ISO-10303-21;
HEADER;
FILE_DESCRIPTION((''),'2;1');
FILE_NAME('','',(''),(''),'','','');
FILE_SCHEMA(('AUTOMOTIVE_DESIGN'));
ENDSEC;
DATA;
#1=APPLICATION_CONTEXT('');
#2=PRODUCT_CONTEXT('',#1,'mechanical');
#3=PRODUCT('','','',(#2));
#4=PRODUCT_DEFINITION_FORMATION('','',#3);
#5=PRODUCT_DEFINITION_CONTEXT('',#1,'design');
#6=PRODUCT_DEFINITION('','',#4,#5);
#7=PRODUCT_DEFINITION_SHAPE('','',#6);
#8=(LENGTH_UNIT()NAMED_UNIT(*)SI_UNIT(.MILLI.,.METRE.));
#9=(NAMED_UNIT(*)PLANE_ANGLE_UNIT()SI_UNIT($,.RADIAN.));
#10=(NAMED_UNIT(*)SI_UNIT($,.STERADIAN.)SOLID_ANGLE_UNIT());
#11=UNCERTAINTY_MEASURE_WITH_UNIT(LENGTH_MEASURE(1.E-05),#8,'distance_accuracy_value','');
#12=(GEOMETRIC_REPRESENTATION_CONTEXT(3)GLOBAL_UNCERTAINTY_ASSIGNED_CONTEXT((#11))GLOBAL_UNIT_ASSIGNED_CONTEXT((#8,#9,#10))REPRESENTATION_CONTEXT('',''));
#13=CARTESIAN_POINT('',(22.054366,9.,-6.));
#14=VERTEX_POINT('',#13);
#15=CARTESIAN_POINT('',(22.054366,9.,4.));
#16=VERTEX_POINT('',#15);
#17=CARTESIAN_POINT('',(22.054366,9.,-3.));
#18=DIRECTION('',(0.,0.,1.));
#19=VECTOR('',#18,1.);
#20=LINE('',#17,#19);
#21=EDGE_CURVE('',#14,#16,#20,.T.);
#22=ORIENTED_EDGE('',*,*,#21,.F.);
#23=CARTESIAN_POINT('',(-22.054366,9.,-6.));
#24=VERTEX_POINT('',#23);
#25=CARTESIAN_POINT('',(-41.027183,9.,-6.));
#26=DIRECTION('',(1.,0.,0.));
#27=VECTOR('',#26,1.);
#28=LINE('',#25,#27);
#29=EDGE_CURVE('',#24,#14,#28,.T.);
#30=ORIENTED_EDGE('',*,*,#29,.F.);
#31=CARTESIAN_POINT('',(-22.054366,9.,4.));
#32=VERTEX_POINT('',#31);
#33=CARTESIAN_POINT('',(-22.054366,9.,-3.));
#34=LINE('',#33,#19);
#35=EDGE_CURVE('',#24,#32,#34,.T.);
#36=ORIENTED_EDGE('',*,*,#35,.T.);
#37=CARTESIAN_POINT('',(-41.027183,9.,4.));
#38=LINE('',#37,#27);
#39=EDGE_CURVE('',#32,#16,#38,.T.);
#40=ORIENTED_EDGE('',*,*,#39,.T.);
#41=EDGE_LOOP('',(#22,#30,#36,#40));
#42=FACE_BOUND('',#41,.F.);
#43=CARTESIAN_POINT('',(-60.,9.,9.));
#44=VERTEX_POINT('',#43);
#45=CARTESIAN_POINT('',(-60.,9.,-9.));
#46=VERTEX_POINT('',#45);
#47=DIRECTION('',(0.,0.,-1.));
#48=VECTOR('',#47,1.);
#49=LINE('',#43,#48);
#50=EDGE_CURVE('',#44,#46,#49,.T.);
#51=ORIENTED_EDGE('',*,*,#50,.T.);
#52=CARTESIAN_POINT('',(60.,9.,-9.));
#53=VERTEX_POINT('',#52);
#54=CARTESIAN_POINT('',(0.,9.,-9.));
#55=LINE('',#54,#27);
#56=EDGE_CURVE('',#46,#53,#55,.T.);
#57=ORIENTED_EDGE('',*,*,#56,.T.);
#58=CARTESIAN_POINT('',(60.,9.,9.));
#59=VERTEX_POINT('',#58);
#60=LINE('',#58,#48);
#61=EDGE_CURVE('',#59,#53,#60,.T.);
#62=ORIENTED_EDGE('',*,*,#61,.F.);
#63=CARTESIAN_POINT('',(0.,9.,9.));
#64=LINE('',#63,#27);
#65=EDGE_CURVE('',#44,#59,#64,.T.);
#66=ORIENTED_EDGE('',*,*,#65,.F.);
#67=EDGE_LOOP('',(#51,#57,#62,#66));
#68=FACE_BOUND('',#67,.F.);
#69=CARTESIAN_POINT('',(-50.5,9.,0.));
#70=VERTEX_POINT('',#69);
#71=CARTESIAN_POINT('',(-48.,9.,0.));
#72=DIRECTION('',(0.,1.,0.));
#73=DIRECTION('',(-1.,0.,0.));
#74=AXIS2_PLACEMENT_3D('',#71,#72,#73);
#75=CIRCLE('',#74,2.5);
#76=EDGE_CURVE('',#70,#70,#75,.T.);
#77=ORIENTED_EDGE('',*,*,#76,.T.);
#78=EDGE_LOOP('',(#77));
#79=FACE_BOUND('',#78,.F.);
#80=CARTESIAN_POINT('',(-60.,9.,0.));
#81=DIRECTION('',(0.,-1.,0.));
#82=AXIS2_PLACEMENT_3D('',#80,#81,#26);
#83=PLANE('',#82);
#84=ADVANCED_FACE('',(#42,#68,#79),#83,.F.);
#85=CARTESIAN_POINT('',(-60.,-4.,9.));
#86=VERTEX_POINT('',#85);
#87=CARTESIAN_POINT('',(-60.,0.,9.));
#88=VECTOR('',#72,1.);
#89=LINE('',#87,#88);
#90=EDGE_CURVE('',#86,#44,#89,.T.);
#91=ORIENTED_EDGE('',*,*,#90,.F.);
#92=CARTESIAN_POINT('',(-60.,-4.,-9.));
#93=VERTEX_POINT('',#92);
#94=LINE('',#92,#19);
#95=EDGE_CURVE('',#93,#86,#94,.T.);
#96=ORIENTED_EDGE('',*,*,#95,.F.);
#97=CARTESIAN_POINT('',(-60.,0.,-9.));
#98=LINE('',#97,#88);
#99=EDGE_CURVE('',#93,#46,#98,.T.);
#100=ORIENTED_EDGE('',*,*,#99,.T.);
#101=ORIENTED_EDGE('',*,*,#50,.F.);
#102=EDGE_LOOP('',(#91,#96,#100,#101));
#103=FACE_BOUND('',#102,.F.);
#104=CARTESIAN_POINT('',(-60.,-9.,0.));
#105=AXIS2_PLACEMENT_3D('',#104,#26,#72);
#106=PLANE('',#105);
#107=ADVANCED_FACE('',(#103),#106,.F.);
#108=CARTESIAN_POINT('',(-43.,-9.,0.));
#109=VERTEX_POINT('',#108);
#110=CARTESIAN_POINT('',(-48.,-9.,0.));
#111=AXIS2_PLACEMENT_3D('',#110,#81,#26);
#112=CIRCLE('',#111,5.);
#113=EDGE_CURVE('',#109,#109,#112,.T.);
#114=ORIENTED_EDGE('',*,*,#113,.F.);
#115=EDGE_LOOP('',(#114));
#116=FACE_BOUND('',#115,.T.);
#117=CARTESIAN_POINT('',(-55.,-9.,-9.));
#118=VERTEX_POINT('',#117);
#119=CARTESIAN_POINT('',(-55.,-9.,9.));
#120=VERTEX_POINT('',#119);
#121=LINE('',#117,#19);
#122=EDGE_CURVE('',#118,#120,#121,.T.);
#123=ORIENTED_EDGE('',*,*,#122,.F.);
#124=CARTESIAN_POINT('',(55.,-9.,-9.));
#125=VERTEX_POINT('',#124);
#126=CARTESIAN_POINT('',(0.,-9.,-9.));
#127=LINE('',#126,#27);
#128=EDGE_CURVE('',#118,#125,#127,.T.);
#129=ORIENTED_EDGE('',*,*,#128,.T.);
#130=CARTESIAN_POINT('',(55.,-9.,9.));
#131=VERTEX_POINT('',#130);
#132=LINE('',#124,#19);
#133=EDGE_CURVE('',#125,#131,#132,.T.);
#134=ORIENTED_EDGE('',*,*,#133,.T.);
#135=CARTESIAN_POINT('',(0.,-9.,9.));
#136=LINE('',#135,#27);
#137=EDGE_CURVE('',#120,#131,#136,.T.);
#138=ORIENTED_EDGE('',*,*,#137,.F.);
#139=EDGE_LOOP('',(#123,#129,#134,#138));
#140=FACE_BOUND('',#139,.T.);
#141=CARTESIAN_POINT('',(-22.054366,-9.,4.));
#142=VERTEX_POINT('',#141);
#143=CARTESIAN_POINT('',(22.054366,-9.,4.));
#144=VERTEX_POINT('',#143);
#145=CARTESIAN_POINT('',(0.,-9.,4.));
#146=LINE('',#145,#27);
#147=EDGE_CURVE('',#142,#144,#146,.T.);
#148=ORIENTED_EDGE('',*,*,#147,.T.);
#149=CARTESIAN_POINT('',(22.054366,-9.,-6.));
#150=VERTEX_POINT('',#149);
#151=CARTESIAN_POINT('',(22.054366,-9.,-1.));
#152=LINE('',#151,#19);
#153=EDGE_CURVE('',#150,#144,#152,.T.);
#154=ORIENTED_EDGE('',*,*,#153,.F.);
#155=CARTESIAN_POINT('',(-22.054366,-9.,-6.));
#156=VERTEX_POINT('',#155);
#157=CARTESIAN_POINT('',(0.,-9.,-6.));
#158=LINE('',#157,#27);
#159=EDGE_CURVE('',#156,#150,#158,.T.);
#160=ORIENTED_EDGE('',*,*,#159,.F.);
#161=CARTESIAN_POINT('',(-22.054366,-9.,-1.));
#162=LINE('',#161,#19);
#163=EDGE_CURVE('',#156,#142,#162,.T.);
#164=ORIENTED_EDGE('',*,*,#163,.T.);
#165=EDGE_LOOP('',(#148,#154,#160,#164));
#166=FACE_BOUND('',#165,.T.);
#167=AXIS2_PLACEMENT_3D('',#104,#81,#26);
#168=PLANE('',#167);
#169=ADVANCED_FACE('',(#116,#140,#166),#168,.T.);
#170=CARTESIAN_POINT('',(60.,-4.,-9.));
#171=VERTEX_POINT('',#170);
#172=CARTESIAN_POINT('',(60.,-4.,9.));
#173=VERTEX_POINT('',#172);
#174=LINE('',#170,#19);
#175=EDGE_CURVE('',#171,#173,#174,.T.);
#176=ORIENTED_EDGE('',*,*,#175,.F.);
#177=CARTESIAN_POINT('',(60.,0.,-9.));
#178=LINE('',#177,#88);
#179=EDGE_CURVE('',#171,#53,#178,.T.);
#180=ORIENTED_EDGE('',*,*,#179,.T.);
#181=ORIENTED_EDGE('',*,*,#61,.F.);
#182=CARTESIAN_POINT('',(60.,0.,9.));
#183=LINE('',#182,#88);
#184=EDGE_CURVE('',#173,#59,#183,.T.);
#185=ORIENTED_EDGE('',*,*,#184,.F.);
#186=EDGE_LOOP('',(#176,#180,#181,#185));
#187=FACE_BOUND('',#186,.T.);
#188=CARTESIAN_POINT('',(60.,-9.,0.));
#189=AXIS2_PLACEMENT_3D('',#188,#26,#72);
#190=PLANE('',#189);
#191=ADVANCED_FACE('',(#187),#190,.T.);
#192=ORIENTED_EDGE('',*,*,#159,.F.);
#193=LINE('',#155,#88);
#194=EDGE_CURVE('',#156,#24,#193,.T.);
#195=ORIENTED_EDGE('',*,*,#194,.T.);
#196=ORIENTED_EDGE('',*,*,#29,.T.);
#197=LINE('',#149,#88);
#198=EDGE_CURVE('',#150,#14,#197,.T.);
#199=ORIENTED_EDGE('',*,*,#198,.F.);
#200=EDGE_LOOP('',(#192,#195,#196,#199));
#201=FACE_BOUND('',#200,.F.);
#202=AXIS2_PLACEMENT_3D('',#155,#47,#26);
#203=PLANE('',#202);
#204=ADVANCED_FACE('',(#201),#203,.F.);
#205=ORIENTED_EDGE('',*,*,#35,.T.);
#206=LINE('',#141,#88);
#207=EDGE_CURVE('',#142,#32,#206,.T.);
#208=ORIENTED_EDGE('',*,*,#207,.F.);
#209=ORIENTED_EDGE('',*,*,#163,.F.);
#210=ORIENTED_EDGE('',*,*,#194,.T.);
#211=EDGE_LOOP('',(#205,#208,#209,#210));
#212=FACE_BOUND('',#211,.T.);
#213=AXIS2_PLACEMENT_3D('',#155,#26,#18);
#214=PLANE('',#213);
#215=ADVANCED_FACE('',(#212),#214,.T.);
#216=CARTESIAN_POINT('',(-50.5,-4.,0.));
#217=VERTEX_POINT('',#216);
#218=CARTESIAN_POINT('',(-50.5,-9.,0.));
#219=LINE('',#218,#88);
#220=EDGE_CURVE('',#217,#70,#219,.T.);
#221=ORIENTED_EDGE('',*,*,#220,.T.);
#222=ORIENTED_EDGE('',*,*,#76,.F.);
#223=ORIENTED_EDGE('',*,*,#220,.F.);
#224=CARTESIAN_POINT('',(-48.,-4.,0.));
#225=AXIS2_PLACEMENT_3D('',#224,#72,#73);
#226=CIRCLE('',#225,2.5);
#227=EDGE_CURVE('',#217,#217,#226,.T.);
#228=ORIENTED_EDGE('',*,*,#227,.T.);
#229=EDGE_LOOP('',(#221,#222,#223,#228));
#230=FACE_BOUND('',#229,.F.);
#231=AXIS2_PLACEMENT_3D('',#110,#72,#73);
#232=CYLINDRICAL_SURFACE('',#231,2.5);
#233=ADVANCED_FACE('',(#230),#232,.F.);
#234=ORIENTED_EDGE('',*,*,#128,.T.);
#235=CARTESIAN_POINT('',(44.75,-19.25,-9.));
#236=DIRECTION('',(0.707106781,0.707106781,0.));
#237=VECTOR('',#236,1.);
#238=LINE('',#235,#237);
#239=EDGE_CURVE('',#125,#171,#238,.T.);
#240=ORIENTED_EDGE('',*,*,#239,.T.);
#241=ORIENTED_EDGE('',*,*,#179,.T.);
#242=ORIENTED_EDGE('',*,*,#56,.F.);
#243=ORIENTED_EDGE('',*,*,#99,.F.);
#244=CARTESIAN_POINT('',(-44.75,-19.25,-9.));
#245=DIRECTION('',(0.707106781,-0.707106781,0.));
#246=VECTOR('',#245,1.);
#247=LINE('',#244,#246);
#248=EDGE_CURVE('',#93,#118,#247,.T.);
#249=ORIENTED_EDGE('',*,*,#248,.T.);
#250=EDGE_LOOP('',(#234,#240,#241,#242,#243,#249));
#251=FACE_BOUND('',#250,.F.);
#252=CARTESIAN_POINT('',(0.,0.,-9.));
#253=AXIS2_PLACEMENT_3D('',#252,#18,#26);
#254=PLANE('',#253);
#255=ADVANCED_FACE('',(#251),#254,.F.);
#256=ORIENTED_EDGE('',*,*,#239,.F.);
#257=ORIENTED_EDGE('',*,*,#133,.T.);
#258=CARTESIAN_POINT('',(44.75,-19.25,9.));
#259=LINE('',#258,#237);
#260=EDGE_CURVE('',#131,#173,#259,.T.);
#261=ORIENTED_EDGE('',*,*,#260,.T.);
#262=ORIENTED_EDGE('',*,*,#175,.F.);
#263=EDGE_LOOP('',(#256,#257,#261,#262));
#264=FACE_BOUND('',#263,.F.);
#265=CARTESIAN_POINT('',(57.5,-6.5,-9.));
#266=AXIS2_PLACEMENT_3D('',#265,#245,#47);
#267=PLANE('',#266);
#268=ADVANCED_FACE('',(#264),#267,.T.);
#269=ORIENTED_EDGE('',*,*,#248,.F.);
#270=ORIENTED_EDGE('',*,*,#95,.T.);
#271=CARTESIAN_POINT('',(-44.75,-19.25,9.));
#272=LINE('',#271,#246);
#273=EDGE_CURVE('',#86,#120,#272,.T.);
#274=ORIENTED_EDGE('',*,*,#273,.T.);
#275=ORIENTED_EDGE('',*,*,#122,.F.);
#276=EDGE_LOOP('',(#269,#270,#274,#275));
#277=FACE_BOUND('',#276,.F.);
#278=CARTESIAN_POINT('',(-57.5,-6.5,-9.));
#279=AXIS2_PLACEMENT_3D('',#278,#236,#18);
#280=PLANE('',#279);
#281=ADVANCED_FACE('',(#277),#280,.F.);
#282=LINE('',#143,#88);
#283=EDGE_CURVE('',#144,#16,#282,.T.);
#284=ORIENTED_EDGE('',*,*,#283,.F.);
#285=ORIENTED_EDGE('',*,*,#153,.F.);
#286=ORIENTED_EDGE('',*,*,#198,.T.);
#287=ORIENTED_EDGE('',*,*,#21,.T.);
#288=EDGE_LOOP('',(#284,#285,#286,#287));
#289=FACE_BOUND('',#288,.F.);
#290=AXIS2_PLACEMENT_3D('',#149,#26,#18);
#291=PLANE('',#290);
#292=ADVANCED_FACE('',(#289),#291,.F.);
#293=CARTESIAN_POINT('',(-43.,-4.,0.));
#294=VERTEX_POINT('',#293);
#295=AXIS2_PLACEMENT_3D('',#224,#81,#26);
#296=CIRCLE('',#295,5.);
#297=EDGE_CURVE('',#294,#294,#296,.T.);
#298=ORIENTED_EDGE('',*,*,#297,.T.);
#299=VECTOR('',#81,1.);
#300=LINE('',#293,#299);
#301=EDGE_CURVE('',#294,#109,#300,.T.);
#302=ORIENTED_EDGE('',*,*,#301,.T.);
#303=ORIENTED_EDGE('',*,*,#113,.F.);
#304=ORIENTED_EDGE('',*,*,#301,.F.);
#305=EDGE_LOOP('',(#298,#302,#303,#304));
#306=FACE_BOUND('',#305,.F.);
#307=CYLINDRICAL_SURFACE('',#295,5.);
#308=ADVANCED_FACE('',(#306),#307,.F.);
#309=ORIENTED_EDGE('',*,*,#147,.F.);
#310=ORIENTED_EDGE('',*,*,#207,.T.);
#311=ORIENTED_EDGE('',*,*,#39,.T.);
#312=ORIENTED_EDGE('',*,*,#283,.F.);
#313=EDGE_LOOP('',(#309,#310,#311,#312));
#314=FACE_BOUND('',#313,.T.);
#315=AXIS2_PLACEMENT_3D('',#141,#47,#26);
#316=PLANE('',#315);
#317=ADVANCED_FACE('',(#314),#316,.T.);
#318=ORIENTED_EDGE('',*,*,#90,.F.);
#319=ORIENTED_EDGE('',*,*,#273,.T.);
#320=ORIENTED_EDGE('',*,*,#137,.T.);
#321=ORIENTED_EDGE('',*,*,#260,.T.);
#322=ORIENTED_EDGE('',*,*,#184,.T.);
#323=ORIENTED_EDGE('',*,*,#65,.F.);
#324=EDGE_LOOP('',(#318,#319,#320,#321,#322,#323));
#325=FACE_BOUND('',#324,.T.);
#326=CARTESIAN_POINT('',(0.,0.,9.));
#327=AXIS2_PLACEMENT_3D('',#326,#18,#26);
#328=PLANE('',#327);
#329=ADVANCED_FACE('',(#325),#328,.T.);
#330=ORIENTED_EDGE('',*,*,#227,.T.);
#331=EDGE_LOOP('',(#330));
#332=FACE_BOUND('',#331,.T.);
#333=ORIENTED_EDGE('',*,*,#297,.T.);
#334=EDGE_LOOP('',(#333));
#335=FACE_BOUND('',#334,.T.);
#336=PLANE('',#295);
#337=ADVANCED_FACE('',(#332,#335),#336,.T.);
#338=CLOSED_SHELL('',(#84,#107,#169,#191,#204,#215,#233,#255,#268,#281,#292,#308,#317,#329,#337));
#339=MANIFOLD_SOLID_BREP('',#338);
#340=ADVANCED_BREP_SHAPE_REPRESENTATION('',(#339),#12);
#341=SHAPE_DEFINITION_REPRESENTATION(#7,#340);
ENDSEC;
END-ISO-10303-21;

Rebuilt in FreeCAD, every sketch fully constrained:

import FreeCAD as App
import Part
import Sketcher
from FreeCAD import Vector
Q = App.Units.Quantity


def edges_at(feature, points):
    """Names of the edges that pass closest to the given points."""
    edges = feature.Shape.Edges
    near = lambda p: min(range(len(edges)), key=lambda i: edges[i].distToShape(Part.Vertex(*p))[0])
    return sorted({f"Edge{near(p) + 1}" for p in points})


def add_polygon(sketch, points):
    """Adds a closed chain of lines whose ends are joined by coincident constraints."""
    first, n = sketch.GeometryCount, len(points)
    for a, b in zip(points, points[1:] + points[:1]):
        sketch.addGeometry(Part.LineSegment(App.Vector(*a, 0), App.Vector(*b, 0)), False)
    for i in range(n):
        sketch.addConstraint(Sketcher.Constraint("Coincident", first + i, 2, first + (i + 1) % n, 1))

doc = App.newDocument("Part")
body = doc.addObject("PartDesign::Body", "Body")

# Sketch on XY plane
sketch1 = body.newObject("Sketcher::SketchObject", "Sketch")
sketch1.AttachmentSupport = (doc.getObject("XY_Plane"), [""])
sketch1.MapMode = "FlatFace"
add_polygon(sketch1, [(-60, 9), (-60, -9), (60, -9), (60, 9)])  # lines 0-3
sketch1.addConstraint(Sketcher.Constraint("Vertical", 0))
sketch1.addConstraint(Sketcher.Constraint("Horizontal", 1))
sketch1.addConstraint(Sketcher.Constraint("Vertical", 2))
sketch1.addConstraint(Sketcher.Constraint("Horizontal", 3))
sketch1.addConstraint(Sketcher.Constraint("Symmetric", 0, 2, 2, 2, -1, 1))
sketch1.addConstraint(Sketcher.Constraint("DistanceX", 1, 1, 1, 2, Q("120 mm")))
sketch1.addConstraint(Sketcher.Constraint("DistanceY", 0, 2, 0, 1, Q("18 mm")))
pad1 = body.newObject("PartDesign::Pad", "Pad")
pad1.Profile = sketch1
pad1.Length = 18
pad1.Midplane = True

# Sketch on XZ plane
sketch2 = body.newObject("Sketcher::SketchObject", "Sketch001")
sketch2.AttachmentSupport = (doc.getObject("XZ_Plane"), [""])
sketch2.MapMode = "FlatFace"
sketch2.AttachmentOffset = App.Placement(Vector(0, 0, 9), App.Rotation())
add_polygon(sketch2, [(-22, 4), (-22, -6), (22, -6), (22, 4)])  # lines 0-3
sketch2.addConstraint(Sketcher.Constraint("Vertical", 0))
sketch2.addConstraint(Sketcher.Constraint("Horizontal", 1))
sketch2.addConstraint(Sketcher.Constraint("Vertical", 2))
sketch2.addConstraint(Sketcher.Constraint("Horizontal", 3))
sketch2.addConstraint(Sketcher.Constraint("DistanceY", 0, 2, 0, 1, Q("10 mm")))
sketch2.addConstraint(Sketcher.Constraint("DistanceY", 0, 2, -1, 1, Q("6 mm")))
sketch2.addConstraint(Sketcher.Constraint("DistanceX", 1, 1, 1, 2, Q("44.108732 mm")))
sketch2.addConstraint(Sketcher.Constraint("DistanceX", 0, 2, -1, 1, Q("22.054366 mm")))
pocket1 = body.newObject("PartDesign::Pocket", "Pocket")
pocket1.Profile = sketch2
pocket1.Length = 25

# Sketch on XZ plane
sketch3 = body.newObject("Sketcher::SketchObject", "Sketch002")
sketch3.AttachmentSupport = (doc.getObject("XZ_Plane"), [""])
sketch3.MapMode = "FlatFace"
sketch3.AttachmentOffset = App.Placement(Vector(0, 0, 9), App.Rotation())
sketch3.addGeometry(Part.Circle(Vector(-48, 0, 0), Vector(0, 0, 1), 2.5), False)
sketch3.addConstraint(Sketcher.Constraint("PointOnObject", 0, 3, -1))
sketch3.addConstraint(Sketcher.Constraint("Diameter", 0, Q("5 mm")))
sketch3.addConstraint(Sketcher.Constraint("DistanceX", 0, 3, -1, 1, Q("48 mm")))
doc.recompute()
hole = body.newObject("PartDesign::Hole", "Hole")
hole.Profile = sketch3
hole.ThreadType = "None"
hole.Diameter = 5
hole.DepthType = "ThroughAll"
hole.HoleCutType = "Counterbore"
hole.HoleCutDiameter = 10
hole.HoleCutDepth = 5
doc.recompute()

chamfer = body.newObject("PartDesign::Chamfer", "Chamfer")
chamfer.Base = (hole, edges_at(hole, [(60, -9, 0), (-60, -9, 0)]))
chamfer.Size = 5

doc.recompute()
